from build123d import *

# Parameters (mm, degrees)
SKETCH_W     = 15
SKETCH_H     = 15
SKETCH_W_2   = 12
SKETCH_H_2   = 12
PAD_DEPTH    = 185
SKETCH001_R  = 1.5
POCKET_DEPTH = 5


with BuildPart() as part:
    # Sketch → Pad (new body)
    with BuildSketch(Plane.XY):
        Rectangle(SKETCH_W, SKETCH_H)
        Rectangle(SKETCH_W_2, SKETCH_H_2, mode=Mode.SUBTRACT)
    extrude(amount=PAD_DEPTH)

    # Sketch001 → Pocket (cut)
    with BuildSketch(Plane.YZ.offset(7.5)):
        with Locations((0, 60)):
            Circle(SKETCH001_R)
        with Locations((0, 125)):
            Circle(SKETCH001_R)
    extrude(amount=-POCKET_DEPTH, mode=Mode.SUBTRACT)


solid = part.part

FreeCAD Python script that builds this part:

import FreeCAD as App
import Part
import Sketcher
from FreeCAD import Vector


def add_polygon(sketch, points):
    """Adds a closed chain of lines whose ends are joined by coincident constraints."""
    first, n = sketch.GeometryCount, len(points)
    for a, b in zip(points, points[1:] + points[:1]):
        sketch.addGeometry(Part.LineSegment(App.Vector(*a, 0), App.Vector(*b, 0)), False)
    for i in range(n):
        sketch.addConstraint(Sketcher.Constraint("Coincident", first + i, 2, first + (i + 1) % n, 1))

doc = App.newDocument("Part")
params = doc.addObject("Spreadsheet::Sheet", "Params")
for row, (alias, value) in enumerate([
    ("sketch1_width", "15 mm"),
    ("sketch1_width2", "12 mm"),
    ("pad1_length", "185 mm"),
    ("sketch2_diameter", "3 mm"),
    ("pocket1_length", "5 mm"),
], start=1):
    params.set(f"A{row}", alias)
    params.set(f"B{row}", "=" + value)
    params.setAlias(f"B{row}", alias)

body = doc.addObject("PartDesign::Body", "Body")

# Sketch on XY plane
sketch1 = body.newObject("Sketcher::SketchObject", "Sketch")
sketch1.AttachmentSupport = (doc.getObject("XY_Plane"), [""])
sketch1.MapMode = "FlatFace"
add_polygon(sketch1, [(-8, 8), (-8, -8), (8, -8), (8, 8)])  # lines 0-3
add_polygon(sketch1, [(6, -6), (-6, -6), (-6, 6), (6, 6)])  # lines 4-7
sketch1.addConstraint([
    Sketcher.Constraint("Vertical", 0),
    Sketcher.Constraint("Horizontal", 1),
    Sketcher.Constraint("Vertical", 2),
    Sketcher.Constraint("Horizontal", 3),
    Sketcher.Constraint("Horizontal", 4),
    Sketcher.Constraint("Vertical", 5),
    Sketcher.Constraint("Horizontal", 6),
    Sketcher.Constraint("Vertical", 7),
    Sketcher.Constraint("Symmetric", 0, 2, 2, 2, -1, 1),
    Sketcher.Constraint("Symmetric", 4, 2, 6, 2, -1, 1),
    Sketcher.Constraint("Equal", 3, 0),
    Sketcher.Constraint("Equal", 6, 5),
    Sketcher.Constraint("DistanceX", 1, 1, 1, 2, 15.0),
    Sketcher.Constraint("DistanceX", 4, 2, 4, 1, 12.0),
])
sketch1.setExpression("Constraints[20]", "Params.sketch1_width")
sketch1.setExpression("Constraints[21]", "Params.sketch1_width2")
pad1 = body.newObject("PartDesign::Pad", "Pad")
pad1.Profile = sketch1
pad1.setExpression("Length", "Params.pad1_length")

# Sketch on YZ plane
sketch2 = body.newObject("Sketcher::SketchObject", "Sketch001")
sketch2.AttachmentSupport = (doc.getObject("YZ_Plane"), [""])
sketch2.MapMode = "FlatFace"
sketch2.AttachmentOffset = App.Placement(Vector(0, 0, 7.5), App.Rotation())
sketch2.addGeometry([
    Part.Circle(Vector(0, 60, 0), Vector(0, 0, 1), 1.5),
    Part.Circle(Vector(0, 125, 0), Vector(0, 0, 1), 1.5),
], False)
sketch2.addConstraint([
    Sketcher.Constraint("Equal", 0, 1),
    Sketcher.Constraint("PointOnObject", 0, 3, -2),
    Sketcher.Constraint("PointOnObject", 1, 3, -2),
    Sketcher.Constraint("Diameter", 0, 3.0),
    Sketcher.Constraint("DistanceY", -1, 1, 0, 3, 60.0),
    Sketcher.Constraint("DistanceY", -1, 1, 1, 3, 125.0),
])
sketch2.setExpression("Constraints[3]", "Params.sketch2_diameter")
pocket1 = body.newObject("PartDesign::Pocket", "Pocket")
pocket1.Profile = sketch2
pocket1.setExpression("Length", "Params.pocket1_length")

doc.recompute()
